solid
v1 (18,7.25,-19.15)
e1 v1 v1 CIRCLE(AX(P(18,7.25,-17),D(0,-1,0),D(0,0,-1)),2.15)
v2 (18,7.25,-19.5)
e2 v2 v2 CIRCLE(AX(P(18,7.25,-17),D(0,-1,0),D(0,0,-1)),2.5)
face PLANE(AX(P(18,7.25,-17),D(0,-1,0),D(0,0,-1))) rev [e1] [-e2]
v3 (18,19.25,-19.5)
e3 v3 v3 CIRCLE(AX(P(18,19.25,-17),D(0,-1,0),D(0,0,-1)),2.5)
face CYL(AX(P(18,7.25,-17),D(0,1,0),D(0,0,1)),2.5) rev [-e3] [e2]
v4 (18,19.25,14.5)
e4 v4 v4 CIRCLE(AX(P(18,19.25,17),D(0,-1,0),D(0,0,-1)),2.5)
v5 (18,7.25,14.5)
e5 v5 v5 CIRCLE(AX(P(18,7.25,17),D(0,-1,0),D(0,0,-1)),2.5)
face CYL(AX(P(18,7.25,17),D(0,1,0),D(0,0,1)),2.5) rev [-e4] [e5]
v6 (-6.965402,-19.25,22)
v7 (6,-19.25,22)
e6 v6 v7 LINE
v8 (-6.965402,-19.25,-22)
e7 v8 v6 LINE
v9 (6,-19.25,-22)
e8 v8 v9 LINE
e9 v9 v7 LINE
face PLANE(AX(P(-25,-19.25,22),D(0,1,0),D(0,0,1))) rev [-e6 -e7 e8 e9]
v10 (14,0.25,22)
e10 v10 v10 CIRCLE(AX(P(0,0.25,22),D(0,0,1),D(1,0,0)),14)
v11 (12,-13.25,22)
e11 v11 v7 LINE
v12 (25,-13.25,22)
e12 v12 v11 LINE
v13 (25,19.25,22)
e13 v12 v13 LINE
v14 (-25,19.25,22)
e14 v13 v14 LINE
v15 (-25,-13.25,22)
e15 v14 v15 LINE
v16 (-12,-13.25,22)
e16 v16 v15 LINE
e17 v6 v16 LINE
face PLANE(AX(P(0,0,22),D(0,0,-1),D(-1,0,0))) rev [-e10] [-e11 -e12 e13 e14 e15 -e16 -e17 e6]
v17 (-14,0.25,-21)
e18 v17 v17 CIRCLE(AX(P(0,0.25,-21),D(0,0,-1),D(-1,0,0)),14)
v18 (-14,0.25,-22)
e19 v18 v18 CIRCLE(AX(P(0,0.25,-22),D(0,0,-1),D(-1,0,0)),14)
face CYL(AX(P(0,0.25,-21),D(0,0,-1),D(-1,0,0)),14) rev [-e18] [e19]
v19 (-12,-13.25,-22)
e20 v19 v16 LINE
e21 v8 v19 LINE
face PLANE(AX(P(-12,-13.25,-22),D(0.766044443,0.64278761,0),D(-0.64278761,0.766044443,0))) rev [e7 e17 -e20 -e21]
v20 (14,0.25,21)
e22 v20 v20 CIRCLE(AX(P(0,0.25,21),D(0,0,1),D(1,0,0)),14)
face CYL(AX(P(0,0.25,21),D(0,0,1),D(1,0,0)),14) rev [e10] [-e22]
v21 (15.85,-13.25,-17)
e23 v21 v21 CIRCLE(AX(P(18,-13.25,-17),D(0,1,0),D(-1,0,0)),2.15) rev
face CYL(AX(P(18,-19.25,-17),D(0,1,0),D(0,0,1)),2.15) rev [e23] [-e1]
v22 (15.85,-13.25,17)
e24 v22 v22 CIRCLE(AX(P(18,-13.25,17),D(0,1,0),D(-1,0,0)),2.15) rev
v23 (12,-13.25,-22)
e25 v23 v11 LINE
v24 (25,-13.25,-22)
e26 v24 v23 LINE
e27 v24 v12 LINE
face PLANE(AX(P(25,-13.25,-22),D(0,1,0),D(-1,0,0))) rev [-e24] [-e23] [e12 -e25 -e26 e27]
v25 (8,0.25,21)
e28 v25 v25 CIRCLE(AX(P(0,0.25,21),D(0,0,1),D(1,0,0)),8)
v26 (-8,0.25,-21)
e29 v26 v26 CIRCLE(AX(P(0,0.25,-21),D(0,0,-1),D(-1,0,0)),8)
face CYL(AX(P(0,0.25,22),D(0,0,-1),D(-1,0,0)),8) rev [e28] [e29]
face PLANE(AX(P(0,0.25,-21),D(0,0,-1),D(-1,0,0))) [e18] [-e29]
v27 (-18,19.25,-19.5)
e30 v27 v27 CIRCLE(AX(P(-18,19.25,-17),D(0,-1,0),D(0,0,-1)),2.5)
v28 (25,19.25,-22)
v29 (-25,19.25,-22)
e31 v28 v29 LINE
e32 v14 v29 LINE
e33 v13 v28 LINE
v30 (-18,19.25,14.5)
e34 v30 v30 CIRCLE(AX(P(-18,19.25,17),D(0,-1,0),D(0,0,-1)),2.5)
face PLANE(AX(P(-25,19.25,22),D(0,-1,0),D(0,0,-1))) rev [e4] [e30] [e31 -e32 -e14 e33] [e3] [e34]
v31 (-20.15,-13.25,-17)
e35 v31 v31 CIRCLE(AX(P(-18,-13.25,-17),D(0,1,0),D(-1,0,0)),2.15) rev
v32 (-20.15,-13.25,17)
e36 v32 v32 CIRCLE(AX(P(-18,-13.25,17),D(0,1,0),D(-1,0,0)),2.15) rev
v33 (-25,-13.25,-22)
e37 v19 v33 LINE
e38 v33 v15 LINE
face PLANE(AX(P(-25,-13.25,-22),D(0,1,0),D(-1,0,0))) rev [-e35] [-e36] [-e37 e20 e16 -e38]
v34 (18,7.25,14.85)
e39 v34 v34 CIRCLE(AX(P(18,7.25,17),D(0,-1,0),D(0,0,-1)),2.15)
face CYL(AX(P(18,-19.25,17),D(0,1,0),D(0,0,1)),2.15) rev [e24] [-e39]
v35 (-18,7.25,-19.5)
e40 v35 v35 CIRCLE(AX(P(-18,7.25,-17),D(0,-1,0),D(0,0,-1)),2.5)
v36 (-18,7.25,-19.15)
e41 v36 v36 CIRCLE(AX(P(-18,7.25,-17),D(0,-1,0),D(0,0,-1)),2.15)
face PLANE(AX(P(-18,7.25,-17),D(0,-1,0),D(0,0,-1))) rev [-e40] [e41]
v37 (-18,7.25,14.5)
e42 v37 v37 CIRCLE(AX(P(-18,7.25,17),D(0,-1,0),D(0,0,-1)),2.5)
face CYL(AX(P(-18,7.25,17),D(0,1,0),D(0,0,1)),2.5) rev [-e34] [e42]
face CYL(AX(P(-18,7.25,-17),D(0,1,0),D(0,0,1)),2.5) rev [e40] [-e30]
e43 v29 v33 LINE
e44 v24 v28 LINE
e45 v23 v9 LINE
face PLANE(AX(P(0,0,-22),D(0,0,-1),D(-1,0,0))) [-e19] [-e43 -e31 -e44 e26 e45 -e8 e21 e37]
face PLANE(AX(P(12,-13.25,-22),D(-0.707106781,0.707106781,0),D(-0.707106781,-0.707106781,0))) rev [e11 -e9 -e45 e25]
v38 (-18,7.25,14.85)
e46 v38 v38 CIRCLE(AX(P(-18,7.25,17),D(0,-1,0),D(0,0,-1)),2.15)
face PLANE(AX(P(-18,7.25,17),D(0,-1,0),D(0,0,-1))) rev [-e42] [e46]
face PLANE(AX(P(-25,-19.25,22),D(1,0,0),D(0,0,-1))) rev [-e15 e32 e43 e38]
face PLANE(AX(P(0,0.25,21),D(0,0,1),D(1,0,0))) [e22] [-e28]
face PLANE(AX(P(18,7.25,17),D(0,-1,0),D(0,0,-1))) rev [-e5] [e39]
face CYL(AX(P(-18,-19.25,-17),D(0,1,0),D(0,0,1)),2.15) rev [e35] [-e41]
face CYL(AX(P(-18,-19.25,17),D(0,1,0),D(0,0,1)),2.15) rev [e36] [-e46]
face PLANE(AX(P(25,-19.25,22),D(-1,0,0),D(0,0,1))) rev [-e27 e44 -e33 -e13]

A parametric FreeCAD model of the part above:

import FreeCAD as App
import Part
import Sketcher
Q = App.Units.Quantity

doc = App.newDocument("Part")
params = doc.addObject("Spreadsheet::Sheet", "Params")
for row, (alias, value) in enumerate([
    ("sketch1_diameter", "16 mm"),
    ("sketch1_width", "50 mm"),
    ("sketch1_height", "38.5 mm"),
    ("pad1_length", "44 mm"),
    ("sketch2_width", "13 mm"),
    ("sketch2_width2", "19 mm"),
    ("sketch2_height", "6 mm"),
    ("sketch3_diameter", "4.3 mm"),
    ("sketch4_diameter", "5 mm"),
    ("pocket3_length", "12 mm"),
    ("sketch5_diameter", "28 mm"),
    ("pocket4_length", "1 mm"),
    ("sketch6_diameter", "28 mm"),
    ("pocket5_length", "1 mm"),
], start=1):
    params.set(f"A{row}", alias)
    params.set(f"B{row}", "=" + value)
    params.setAlias(f"B{row}", alias)

body = doc.addObject("PartDesign::Body", "Body")

# Sketch on XY plane
sketch1 = body.newObject("Sketcher::SketchObject", "Sketch")
sketch1.AttachmentSupport = (doc.getObject("XY_Plane"), [""])
sketch1.MapMode = "FlatFace"
sketch1.addGeometry([
    Part.LineSegment(App.Vector(-25, 19, 0), App.Vector(-25, -19, 0)),  # 0
    Part.LineSegment(App.Vector(-25, -19, 0), App.Vector(25, -19, 0)),  # 1
    Part.LineSegment(App.Vector(25, -19, 0), App.Vector(25, 19, 0)),  # 2
    Part.LineSegment(App.Vector(25, 19, 0), App.Vector(-25, 19, 0)),  # 3
    Part.Circle(App.Vector(0, 0, 0), App.Vector(0, 0, 1), 8),  # 4
], False)
sketch1.addConstraint([
    Sketcher.Constraint("Coincident", 0, 2, 1, 1),
    Sketcher.Constraint("Coincident", 1, 2, 2, 1),
    Sketcher.Constraint("Coincident", 2, 2, 3, 1),
    Sketcher.Constraint("Coincident", 3, 2, 0, 1),
    Sketcher.Constraint("Vertical", 0),
    Sketcher.Constraint("Horizontal", 1),
    Sketcher.Constraint("Vertical", 2),
    Sketcher.Constraint("Horizontal", 3),
    Sketcher.Constraint("Symmetric", 0, 2, 2, 2, -1, 1),
    Sketcher.Constraint("PointOnObject", 4, 3, -2),
    Sketcher.Constraint("Diameter", 4, Q("16 mm")),
    Sketcher.Constraint("DistanceX", 1, 1, 1, 2, Q("50 mm")),
    Sketcher.Constraint("DistanceY", 0, 2, 0, 1, Q("38.5 mm")),
    Sketcher.Constraint("DistanceY", 4, 3, 2, 2, Q("19 mm")),
])
sketch1.setExpression("Constraints[10]", "Params.sketch1_diameter")
sketch1.setExpression("Constraints[11]", "Params.sketch1_width")
sketch1.setExpression("Constraints[12]", "Params.sketch1_height")
pad1 = body.newObject("PartDesign::Pad", "Pad")
pad1.Profile = sketch1
pad1.setExpression("Length", "Params.pad1_length")
pad1.Midplane = True

# Sketch on XY plane
sketch2 = body.newObject("Sketcher::SketchObject", "Sketch001")
sketch2.AttachmentSupport = (doc.getObject("XY_Plane"), [""])
sketch2.MapMode = "FlatFace"
sketch2.AttachmentOffset = App.Placement(App.Vector(0, 0, 22), App.Rotation())
sketch2.addGeometry([
    Part.LineSegment(App.Vector(-12, -13, 0), App.Vector(-25, -13, 0)),  # 0
    Part.LineSegment(App.Vector(-25, -13, 0), App.Vector(-25, -19, 0)),  # 1
    Part.LineSegment(App.Vector(-25, -19, 0), App.Vector(-7, -19, 0)),  # 2
    Part.LineSegment(App.Vector(-7, -19, 0), App.Vector(-12, -13, 0)),  # 3
    Part.LineSegment(App.Vector(25, -13, 0), App.Vector(12, -13, 0)),  # 4
    Part.LineSegment(App.Vector(12, -13, 0), App.Vector(6, -19, 0)),  # 5
    Part.LineSegment(App.Vector(6, -19, 0), App.Vector(25, -19, 0)),  # 6
    Part.LineSegment(App.Vector(25, -19, 0), App.Vector(25, -13, 0)),  # 7
], False)
sketch2.addConstraint([
    Sketcher.Constraint("Coincident", 0, 2, 1, 1),
    Sketcher.Constraint("Coincident", 1, 2, 2, 1),
    Sketcher.Constraint("Coincident", 2, 2, 3, 1),
    Sketcher.Constraint("Coincident", 3, 2, 0, 1),
    Sketcher.Constraint("Coincident", 4, 2, 5, 1),
    Sketcher.Constraint("Coincident", 5, 2, 6, 1),
    Sketcher.Constraint("Coincident", 6, 2, 7, 1),
    Sketcher.Constraint("Coincident", 7, 2, 4, 1),
    Sketcher.Constraint("Horizontal", 0),
    Sketcher.Constraint("Vertical", 1),
    Sketcher.Constraint("Horizontal", 2),
    Sketcher.Constraint("Horizontal", 4),
    Sketcher.Constraint("Horizontal", 6),
    Sketcher.Constraint("Vertical", 7),
    Sketcher.Constraint("Symmetric", 3, 2, 4, 2, -2),
    Sketcher.Constraint("Symmetric", 1, 2, 6, 2, -2),
    Sketcher.Constraint("DistanceX", 0, 2, 0, 1, Q("13 mm")),
    Sketcher.Constraint("DistanceX", 6, 1, 6, 2, Q("19 mm")),
    Sketcher.Constraint("DistanceY", 1, 2, 1, 1, Q("6 mm")),
    Sketcher.Constraint("Angle", 3, Q("130 deg")),
    Sketcher.Constraint("DistanceX", 0, 2, -1, 1, Q("25 mm")),
    Sketcher.Constraint("DistanceY", 0, 2, -1, 1, Q("13.25 mm")),
])
sketch2.setExpression("Constraints[16]", "Params.sketch2_width")
sketch2.setExpression("Constraints[17]", "Params.sketch2_width2")
sketch2.setExpression("Constraints[18]", "Params.sketch2_height")
pocket1 = body.newObject("PartDesign::Pocket", "Pocket")
pocket1.Profile = sketch2
pocket1.Type = "ThroughAll"

# Sketch on XZ plane
sketch3 = body.newObject("Sketcher::SketchObject", "Sketch002")
sketch3.AttachmentSupport = (doc.getObject("XZ_Plane"), [""])
sketch3.MapMode = "FlatFace"
sketch3.AttachmentOffset = App.Placement(App.Vector(0, 0, -19.25), App.Rotation())
sketch3.addGeometry([
    Part.Circle(App.Vector(-18, 17, 0), App.Vector(0, 0, 1), 2.1),
    Part.Circle(App.Vector(18, 17, 0), App.Vector(0, 0, 1), 2.1),
    Part.Circle(App.Vector(18, -17, 0), App.Vector(0, 0, 1), 2.1),
    Part.Circle(App.Vector(-18, -17, 0), App.Vector(0, 0, 1), 2.1),
], False)
sketch3.addConstraint([
    Sketcher.Constraint("Equal", 0, 1),
    Sketcher.Constraint("Equal", 1, 2),
    Sketcher.Constraint("Equal", 2, 3),
    Sketcher.Constraint("Symmetric", 0, 3, 2, 3, -1, 1),
    Sketcher.Constraint("Symmetric", 1, 3, 3, 3, -1, 1),
    Sketcher.Constraint("Symmetric", 0, 3, 1, 3, -2),
    Sketcher.Constraint("Diameter", 0, Q("4.3 mm")),
    Sketcher.Constraint("DistanceX", 0, 3, -1, 1, Q("18 mm")),
    Sketcher.Constraint("DistanceY", -1, 1, 0, 3, Q("17 mm")),
])
sketch3.setExpression("Constraints[6]", "Params.sketch3_diameter")
pocket2 = body.newObject("PartDesign::Pocket", "Pocket001")
pocket2.Profile = sketch3
pocket2.Type = "ThroughAll"
pocket2.Reversed = True

# Sketch on XZ plane
sketch4 = body.newObject("Sketcher::SketchObject", "Sketch003")
sketch4.AttachmentSupport = (doc.getObject("XZ_Plane"), [""])
sketch4.MapMode = "FlatFace"
sketch4.AttachmentOffset = App.Placement(App.Vector(0, 0, -19.25), App.Rotation())
sketch4.addGeometry([
    Part.Circle(App.Vector(-18, 17, 0), App.Vector(0, 0, 1), 2.5),
    Part.Circle(App.Vector(18, 17, 0), App.Vector(0, 0, 1), 2.5),
    Part.Circle(App.Vector(18, -17, 0), App.Vector(0, 0, 1), 2.5),
    Part.Circle(App.Vector(-18, -17, 0), App.Vector(0, 0, 1), 2.5),
], False)
sketch4.addConstraint([
    Sketcher.Constraint("Equal", 0, 1),
    Sketcher.Constraint("Equal", 1, 2),
    Sketcher.Constraint("Equal", 2, 3),
    Sketcher.Constraint("Symmetric", 0, 3, 2, 3, -1, 1),
    Sketcher.Constraint("Symmetric", 1, 3, 3, 3, -1, 1),
    Sketcher.Constraint("Symmetric", 0, 3, 1, 3, -2),
    Sketcher.Constraint("Diameter", 0, Q("5 mm")),
    Sketcher.Constraint("DistanceX", 0, 3, -1, 1, Q("18 mm")),
    Sketcher.Constraint("DistanceY", -1, 1, 0, 3, Q("17 mm")),
])
sketch4.setExpression("Constraints[6]", "Params.sketch4_diameter")
pocket3 = body.newObject("PartDesign::Pocket", "Pocket002")
pocket3.Profile = sketch4
pocket3.setExpression("Length", "Params.pocket3_length")
pocket3.Reversed = True

# Sketch on XY plane
sketch5 = body.newObject("Sketcher::SketchObject", "Sketch004")
sketch5.AttachmentSupport = (doc.getObject("XY_Plane"), [""])
sketch5.MapMode = "FlatFace"
sketch5.AttachmentOffset = App.Placement(App.Vector(0, 0, 22), App.Rotation())
sketch5.addGeometry(Part.Circle(App.Vector(0, 0, 0), App.Vector(0, 0, 1), 14), False)
sketch5.addConstraint([
    Sketcher.Constraint("PointOnObject", 0, 3, -2),
    Sketcher.Constraint("Diameter", 0, Q("28 mm")),
    Sketcher.Constraint("DistanceY", -1, 1, 0, 3, Q("0.25 mm")),
])
sketch5.setExpression("Constraints[1]", "Params.sketch5_diameter")
pocket4 = body.newObject("PartDesign::Pocket", "Pocket003")
pocket4.Profile = sketch5
pocket4.setExpression("Length", "Params.pocket4_length")

# Sketch on XY plane
sketch6 = body.newObject("Sketcher::SketchObject", "Sketch005")
sketch6.AttachmentSupport = (doc.getObject("XY_Plane"), [""])
sketch6.MapMode = "FlatFace"
sketch6.AttachmentOffset = App.Placement(App.Vector(0, 0, -22), App.Rotation())
sketch6.addGeometry(Part.Circle(App.Vector(0, 0, 0), App.Vector(0, 0, 1), 14), False)
sketch6.addConstraint([
    Sketcher.Constraint("PointOnObject", 0, 3, -2),
    Sketcher.Constraint("Diameter", 0, Q("28 mm")),
    Sketcher.Constraint("DistanceY", -1, 1, 0, 3, Q("0.25 mm")),
])
sketch6.setExpression("Constraints[1]", "Params.sketch6_diameter")
pocket5 = body.newObject("PartDesign::Pocket", "Pocket004")
pocket5.Profile = sketch6
pocket5.setExpression("Length", "Params.pocket5_length")
pocket5.Reversed = True

doc.recompute()
